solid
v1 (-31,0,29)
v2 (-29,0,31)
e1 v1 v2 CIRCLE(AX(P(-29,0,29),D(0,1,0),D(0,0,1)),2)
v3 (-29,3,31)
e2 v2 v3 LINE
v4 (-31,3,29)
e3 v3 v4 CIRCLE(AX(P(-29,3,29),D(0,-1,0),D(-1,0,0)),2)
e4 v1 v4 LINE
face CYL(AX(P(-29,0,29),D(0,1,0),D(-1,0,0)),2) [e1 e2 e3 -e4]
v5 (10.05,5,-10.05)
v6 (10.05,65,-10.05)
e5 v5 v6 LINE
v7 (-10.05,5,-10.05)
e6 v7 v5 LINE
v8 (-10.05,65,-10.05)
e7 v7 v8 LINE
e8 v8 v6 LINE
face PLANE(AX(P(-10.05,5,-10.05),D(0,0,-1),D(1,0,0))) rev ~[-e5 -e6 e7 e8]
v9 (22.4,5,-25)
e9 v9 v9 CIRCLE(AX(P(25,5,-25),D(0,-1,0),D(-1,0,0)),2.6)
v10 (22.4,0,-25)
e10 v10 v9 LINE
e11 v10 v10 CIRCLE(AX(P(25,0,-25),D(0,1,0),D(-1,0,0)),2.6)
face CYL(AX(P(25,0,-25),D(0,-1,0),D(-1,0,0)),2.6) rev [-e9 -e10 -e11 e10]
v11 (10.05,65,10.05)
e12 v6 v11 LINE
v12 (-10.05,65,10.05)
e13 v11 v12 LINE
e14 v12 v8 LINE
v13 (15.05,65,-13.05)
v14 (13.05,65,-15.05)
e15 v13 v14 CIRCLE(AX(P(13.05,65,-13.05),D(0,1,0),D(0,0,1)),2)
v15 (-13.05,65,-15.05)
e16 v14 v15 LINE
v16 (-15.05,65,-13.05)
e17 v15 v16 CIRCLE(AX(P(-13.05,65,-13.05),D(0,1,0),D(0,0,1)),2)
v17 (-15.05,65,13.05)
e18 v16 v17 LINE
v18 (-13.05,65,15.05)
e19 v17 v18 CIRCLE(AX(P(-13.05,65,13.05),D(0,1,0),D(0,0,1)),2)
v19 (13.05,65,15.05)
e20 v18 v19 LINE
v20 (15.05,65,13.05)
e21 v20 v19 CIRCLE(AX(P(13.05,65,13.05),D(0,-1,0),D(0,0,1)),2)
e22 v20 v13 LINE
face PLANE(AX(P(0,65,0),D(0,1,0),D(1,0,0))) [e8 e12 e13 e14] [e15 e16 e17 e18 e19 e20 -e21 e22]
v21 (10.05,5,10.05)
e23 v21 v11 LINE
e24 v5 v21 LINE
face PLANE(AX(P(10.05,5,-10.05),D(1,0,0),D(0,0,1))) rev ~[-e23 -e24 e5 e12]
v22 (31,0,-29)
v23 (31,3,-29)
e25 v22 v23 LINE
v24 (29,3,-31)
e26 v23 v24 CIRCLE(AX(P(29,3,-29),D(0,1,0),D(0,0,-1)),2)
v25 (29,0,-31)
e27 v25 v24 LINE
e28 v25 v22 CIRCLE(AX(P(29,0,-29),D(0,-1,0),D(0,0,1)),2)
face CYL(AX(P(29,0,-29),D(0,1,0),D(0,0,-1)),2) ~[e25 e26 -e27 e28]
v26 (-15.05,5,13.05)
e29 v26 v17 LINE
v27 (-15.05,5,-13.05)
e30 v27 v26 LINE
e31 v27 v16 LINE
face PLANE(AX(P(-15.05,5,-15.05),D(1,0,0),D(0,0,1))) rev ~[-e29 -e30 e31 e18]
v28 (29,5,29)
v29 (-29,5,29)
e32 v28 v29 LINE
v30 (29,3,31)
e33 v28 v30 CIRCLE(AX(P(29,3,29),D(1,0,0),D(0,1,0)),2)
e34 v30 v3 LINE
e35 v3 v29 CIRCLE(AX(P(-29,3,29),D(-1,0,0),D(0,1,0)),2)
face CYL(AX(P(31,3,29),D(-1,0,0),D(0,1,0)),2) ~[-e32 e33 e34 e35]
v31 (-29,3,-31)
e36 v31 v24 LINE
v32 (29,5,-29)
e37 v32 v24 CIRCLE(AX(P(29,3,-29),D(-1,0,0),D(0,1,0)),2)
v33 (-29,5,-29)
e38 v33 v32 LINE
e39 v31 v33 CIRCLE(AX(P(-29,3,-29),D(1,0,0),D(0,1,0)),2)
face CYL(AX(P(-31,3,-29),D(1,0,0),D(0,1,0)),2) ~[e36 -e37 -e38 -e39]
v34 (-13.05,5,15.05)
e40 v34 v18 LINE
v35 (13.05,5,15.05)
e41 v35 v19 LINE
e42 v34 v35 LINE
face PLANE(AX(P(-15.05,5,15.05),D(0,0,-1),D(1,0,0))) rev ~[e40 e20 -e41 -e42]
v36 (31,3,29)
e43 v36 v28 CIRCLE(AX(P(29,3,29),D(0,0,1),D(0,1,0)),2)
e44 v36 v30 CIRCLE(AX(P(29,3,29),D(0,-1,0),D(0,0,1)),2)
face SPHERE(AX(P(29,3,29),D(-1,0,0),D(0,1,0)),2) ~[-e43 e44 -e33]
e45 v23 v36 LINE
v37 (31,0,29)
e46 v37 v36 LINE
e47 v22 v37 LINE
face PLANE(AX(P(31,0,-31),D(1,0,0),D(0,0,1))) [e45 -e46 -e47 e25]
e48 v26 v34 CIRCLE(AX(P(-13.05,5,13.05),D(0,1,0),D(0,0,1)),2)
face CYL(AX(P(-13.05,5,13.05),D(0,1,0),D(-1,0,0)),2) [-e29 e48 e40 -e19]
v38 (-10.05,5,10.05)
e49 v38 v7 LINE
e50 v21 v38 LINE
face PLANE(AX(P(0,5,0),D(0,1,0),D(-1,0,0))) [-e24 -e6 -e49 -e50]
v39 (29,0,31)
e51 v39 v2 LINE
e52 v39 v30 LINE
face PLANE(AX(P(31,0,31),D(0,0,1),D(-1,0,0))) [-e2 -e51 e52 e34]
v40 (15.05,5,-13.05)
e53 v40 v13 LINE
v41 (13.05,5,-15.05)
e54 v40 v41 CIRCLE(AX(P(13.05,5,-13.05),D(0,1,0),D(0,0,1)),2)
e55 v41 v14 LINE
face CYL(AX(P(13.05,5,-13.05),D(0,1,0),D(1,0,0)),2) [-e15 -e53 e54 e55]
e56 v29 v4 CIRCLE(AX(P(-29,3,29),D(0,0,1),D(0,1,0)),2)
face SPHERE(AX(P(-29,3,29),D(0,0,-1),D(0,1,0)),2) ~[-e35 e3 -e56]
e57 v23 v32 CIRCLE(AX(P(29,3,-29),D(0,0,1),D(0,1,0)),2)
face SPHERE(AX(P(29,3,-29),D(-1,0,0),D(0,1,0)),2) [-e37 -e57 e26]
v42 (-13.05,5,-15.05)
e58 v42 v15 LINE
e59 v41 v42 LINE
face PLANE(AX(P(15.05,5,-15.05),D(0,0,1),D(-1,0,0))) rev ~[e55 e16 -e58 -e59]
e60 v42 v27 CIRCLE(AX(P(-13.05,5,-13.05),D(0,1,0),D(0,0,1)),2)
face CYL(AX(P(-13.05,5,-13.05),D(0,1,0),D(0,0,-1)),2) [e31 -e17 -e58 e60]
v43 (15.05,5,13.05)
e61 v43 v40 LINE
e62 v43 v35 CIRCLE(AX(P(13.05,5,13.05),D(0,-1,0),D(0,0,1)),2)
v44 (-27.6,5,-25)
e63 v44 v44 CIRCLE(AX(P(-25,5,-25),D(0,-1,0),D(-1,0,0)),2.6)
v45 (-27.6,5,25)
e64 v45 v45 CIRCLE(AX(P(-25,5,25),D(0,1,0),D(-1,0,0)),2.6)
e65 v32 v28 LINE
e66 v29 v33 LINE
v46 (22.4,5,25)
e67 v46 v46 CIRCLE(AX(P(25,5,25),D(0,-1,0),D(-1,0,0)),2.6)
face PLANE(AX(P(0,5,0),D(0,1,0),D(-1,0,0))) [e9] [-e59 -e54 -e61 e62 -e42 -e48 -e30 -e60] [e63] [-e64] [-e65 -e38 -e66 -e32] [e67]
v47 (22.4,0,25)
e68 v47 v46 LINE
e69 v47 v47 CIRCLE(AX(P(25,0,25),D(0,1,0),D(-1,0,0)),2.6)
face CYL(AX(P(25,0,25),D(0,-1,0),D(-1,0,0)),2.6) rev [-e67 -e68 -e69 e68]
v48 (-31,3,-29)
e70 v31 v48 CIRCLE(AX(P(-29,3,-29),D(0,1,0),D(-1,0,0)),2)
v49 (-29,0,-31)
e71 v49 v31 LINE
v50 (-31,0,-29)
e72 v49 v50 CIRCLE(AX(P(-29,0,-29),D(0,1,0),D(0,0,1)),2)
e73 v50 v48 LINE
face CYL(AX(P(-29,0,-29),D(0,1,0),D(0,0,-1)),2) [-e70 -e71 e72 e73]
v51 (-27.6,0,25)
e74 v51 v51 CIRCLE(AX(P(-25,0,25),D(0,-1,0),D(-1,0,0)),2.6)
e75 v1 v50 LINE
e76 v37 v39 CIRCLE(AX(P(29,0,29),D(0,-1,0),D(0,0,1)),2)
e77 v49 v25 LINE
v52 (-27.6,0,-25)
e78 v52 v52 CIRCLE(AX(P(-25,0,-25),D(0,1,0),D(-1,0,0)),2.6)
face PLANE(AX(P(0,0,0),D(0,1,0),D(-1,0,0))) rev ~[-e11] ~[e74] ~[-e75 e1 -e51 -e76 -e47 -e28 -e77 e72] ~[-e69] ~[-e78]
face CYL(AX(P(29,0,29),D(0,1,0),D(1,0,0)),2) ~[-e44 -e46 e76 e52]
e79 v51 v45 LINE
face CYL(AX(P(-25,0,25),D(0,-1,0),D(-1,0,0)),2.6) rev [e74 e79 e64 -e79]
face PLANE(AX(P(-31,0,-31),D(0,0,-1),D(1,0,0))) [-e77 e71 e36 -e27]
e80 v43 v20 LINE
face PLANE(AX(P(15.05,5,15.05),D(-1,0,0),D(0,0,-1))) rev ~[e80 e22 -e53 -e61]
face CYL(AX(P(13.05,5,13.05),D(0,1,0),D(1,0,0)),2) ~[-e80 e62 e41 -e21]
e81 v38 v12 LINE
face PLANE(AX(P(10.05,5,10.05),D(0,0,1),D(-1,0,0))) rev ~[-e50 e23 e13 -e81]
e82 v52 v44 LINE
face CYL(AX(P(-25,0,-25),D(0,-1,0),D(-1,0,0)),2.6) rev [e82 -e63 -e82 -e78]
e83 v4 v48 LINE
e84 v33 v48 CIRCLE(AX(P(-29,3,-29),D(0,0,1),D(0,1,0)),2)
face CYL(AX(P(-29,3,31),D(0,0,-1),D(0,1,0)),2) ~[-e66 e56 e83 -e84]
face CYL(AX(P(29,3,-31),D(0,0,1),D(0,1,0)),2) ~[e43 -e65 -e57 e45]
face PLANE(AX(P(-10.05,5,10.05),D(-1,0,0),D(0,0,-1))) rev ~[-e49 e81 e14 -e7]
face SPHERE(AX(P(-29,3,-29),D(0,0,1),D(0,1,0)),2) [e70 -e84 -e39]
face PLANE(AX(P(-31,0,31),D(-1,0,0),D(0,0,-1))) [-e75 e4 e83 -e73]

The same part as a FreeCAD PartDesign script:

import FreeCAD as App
import Part
import Sketcher

V = App.Vector
Q = App.Units.Quantity


def edges_at(feature, points):
    """Names of the edges that pass closest to the given points."""
    edges = feature.Shape.Edges
    near = lambda p: min(range(len(edges)), key=lambda i: edges[i].distToShape(Part.Vertex(*p))[0])
    return sorted({f"Edge{near(p) + 1}" for p in points})


def add_polygon(sketch, points):
    """Adds a closed chain of lines whose ends are joined by coincident constraints."""
    first, n = sketch.GeometryCount, len(points)
    for a, b in zip(points, points[1:] + points[:1]):
        sketch.addGeometry(Part.LineSegment(App.Vector(*a, 0), App.Vector(*b, 0)), False)
    for i in range(n):
        sketch.addConstraint(Sketcher.Constraint("Coincident", first + i, 2, first + (i + 1) % n, 1))

doc = App.newDocument("Part")
body = doc.addObject("PartDesign::Body", "Body")

sketch1 = body.newObject("Sketcher::SketchObject", "Sketch")
sketch1.AttachmentSupport = (doc.getObject("XZ_Plane"), [""])
sketch1.MapMode = "FlatFace"
add_polygon(sketch1, [(31, -31), (-31, -31), (-31, 31), (31, 31)])
sketch1.addGeometry(Part.Circle(V(-25, 25, 0), V(0, 0, 1), 2.6), False)
sketch1.addGeometry(Part.Circle(V(-25, -25, 0), V(0, 0, 1), 2.6), False)
sketch1.addGeometry(Part.Circle(V(25, -25, 0), V(0, 0, 1), 2.6), False)
sketch1.addGeometry(Part.Circle(V(25, 25, 0), V(0, 0, 1), 2.6), False)
sketch1.addConstraint(Sketcher.Constraint("Horizontal", 0))
sketch1.addConstraint(Sketcher.Constraint("Vertical", 1))
sketch1.addConstraint(Sketcher.Constraint("Horizontal", 2))
sketch1.addConstraint(Sketcher.Constraint("Vertical", 3))
sketch1.addConstraint(Sketcher.Constraint("Equal", 4, 5))
sketch1.addConstraint(Sketcher.Constraint("Equal", 5, 6))
sketch1.addConstraint(Sketcher.Constraint("Equal", 6, 7))
sketch1.addConstraint(Sketcher.Constraint("Symmetric", 4, 3, 6, 3, -1, 1))
sketch1.addConstraint(Sketcher.Constraint("Symmetric", 5, 3, 7, 3, -1, 1))
sketch1.addConstraint(Sketcher.Constraint("Symmetric", 0, 2, 2, 2, -1, 1))
sketch1.addConstraint(Sketcher.Constraint("Symmetric", 5, 3, 6, 3, -2))
sketch1.addConstraint(Sketcher.Constraint("Equal", 2, 1))
sketch1.addConstraint(Sketcher.Constraint("Diameter", 4, Q("5.2 mm")))
sketch1.addConstraint(Sketcher.Constraint("DistanceY", 5, 3, 4, 3, Q("50 mm")))
sketch1.addConstraint(Sketcher.Constraint("DistanceX", 5, 3, 6, 3, Q("50 mm")))
sketch1.addConstraint(Sketcher.Constraint("DistanceX", 0, 2, 5, 3, Q("6 mm")))
pad1 = body.newObject("PartDesign::Pad", "Pad")
pad1.Profile = sketch1
pad1.Length = 5
pad1.Reversed = True

sketch2 = body.newObject("Sketcher::SketchObject", "Sketch001")
sketch2.AttachmentSupport = (doc.getObject("XZ_Plane"), [""])
sketch2.MapMode = "FlatFace"
sketch2.AttachmentOffset = App.Placement(V(0, 0, -5), App.Rotation())
add_polygon(sketch2, [(15, 15), (15, -15), (-15, -15), (-15, 15)])
add_polygon(sketch2, [(-10, 10), (-10, -10), (10, -10), (10, 10)])
sketch2.addConstraint(Sketcher.Constraint("Vertical", 0))
sketch2.addConstraint(Sketcher.Constraint("Horizontal", 1))
sketch2.addConstraint(Sketcher.Constraint("Vertical", 2))
sketch2.addConstraint(Sketcher.Constraint("Horizontal", 3))
sketch2.addConstraint(Sketcher.Constraint("Vertical", 4))
sketch2.addConstraint(Sketcher.Constraint("Horizontal", 5))
sketch2.addConstraint(Sketcher.Constraint("Vertical", 6))
sketch2.addConstraint(Sketcher.Constraint("Horizontal", 7))
sketch2.addConstraint(Sketcher.Constraint("Symmetric", 0, 2, 2, 2, -1, 1))
sketch2.addConstraint(Sketcher.Constraint("Symmetric", 4, 2, 6, 2, -1, 1))
sketch2.addConstraint(Sketcher.Constraint("Equal", 3, 0))
sketch2.addConstraint(Sketcher.Constraint("Equal", 7, 4))
sketch2.addConstraint(Sketcher.Constraint("DistanceX", 5, 1, 5, 2, Q("20.1 mm")))
sketch2.addConstraint(Sketcher.Constraint("DistanceX", 1, 2, 4, 2, Q("5 mm")))
pad2 = body.newObject("PartDesign::Pad", "Pad001")
pad2.Profile = sketch2
pad2.Length = 60
pad2.Reversed = True
doc.recompute()

fillet = body.newObject("PartDesign::Fillet", "Fillet")
fillet.Base = (pad2, edges_at(pad2, [
    (-31, 5, 0),
    (0, 5, -31),
    (0, 5, 31),
    (31, 5, 0),
    (-31, 2.5, -31),
    (-31, 2.5, 31),
    (31, 2.5, 31),
    (31, 2.5, -31),
    (-15.05, 35, 15.05),
    (15.05, 35, 15.05),
    (15.05, 35, -15.05),
    (-15.05, 35, -15.05),
]))
fillet.Radius = 2

doc.recompute()
